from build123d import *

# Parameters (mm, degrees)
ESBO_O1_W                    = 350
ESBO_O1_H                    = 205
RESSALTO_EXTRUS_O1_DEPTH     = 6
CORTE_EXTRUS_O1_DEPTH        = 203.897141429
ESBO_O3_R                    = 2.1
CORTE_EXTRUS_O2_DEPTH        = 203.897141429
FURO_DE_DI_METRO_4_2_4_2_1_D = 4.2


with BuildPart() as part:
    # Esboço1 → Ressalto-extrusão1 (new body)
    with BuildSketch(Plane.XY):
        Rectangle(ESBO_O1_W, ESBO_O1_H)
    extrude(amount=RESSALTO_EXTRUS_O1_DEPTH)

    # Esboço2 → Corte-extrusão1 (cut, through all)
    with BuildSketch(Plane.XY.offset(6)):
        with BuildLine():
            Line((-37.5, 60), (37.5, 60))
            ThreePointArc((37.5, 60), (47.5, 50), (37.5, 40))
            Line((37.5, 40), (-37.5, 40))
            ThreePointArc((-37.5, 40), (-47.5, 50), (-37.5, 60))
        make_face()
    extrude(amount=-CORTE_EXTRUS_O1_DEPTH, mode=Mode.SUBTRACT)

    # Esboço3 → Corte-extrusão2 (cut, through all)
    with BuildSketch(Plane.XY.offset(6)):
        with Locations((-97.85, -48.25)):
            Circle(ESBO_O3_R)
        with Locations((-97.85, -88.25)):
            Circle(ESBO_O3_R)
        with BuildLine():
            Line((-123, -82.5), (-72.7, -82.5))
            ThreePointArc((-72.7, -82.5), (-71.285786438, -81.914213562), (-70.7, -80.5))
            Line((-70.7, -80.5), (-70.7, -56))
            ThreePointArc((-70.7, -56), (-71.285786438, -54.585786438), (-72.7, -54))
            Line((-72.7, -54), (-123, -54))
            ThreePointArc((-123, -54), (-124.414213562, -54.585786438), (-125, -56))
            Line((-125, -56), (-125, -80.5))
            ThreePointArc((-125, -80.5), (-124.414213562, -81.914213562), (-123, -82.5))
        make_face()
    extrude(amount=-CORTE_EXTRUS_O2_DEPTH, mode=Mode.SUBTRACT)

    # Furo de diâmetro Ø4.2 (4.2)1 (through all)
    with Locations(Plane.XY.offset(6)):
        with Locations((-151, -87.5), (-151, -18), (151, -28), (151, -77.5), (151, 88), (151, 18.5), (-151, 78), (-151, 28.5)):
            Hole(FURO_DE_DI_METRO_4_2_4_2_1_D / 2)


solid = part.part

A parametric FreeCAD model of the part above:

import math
import FreeCAD as App
import Part
import Sketcher
from FreeCAD import Vector
Q = App.Units.Quantity


def add_polygon(sketch, points):
    """Adds a closed chain of lines whose ends are joined by coincident constraints."""
    first, n = sketch.GeometryCount, len(points)
    for a, b in zip(points, points[1:] + points[:1]):
        sketch.addGeometry(Part.LineSegment(App.Vector(*a, 0), App.Vector(*b, 0)), False)
    for i in range(n):
        sketch.addConstraint(Sketcher.Constraint("Coincident", first + i, 2, first + (i + 1) % n, 1))

doc = App.newDocument("Part")
body = doc.addObject("PartDesign::Body", "Body")

sketch1 = body.newObject("Sketcher::SketchObject", "Sketch")
sketch1.AttachmentSupport = (doc.getObject("XY_Plane"), [""])
sketch1.MapMode = "FlatFace"
add_polygon(sketch1, [(-175, 102.5), (-175, -102.5), (175, -102.5), (175, 102.5)])
sketch1.addConstraint(Sketcher.Constraint("Vertical", 0))
sketch1.addConstraint(Sketcher.Constraint("Horizontal", 1))
sketch1.addConstraint(Sketcher.Constraint("Vertical", 2))
sketch1.addConstraint(Sketcher.Constraint("Horizontal", 3))
sketch1.addConstraint(Sketcher.Constraint("Symmetric", 0, 2, 2, 2, -1, 1))
sketch1.addConstraint(Sketcher.Constraint("DistanceX", 1, 1, 1, 2, Q("350 mm")))
sketch1.addConstraint(Sketcher.Constraint("DistanceY", 0, 2, 0, 1, Q("205 mm")))
pad1 = body.newObject("PartDesign::Pad", "Pad")
pad1.Profile = sketch1
pad1.Length = 6

sketch2 = body.newObject("Sketcher::SketchObject", "Sketch001")
sketch2.AttachmentSupport = (doc.getObject("XY_Plane"), [""])
sketch2.MapMode = "FlatFace"
sketch2.AttachmentOffset = App.Placement(Vector(0, 0, 6), App.Rotation())
sketch2.addGeometry(Part.LineSegment(Vector(37.5, 60, 0), Vector(-37.5, 60, 0)), False)
sketch2.addGeometry(Part.ArcOfCircle(Part.Circle(Vector(-37.5, 50, 0), Vector(0, 0, 1), 10), math.radians(90), math.radians(270)), False)
sketch2.addGeometry(Part.LineSegment(Vector(-37.5, 40, 0), Vector(37.5, 40, 0)), False)
sketch2.addGeometry(Part.ArcOfCircle(Part.Circle(Vector(37.5, 50, 0), Vector(0, 0, 1), 10), math.radians(-90), math.radians(90)), False)
sketch2.addConstraint(Sketcher.Constraint("Tangent", 0, 2, 1, 1))
sketch2.addConstraint(Sketcher.Constraint("Tangent", 1, 2, 2, 1))
sketch2.addConstraint(Sketcher.Constraint("Tangent", 2, 2, 3, 1))
sketch2.addConstraint(Sketcher.Constraint("Tangent", 3, 2, 0, 1))
sketch2.addConstraint(Sketcher.Constraint("Horizontal", 0))
sketch2.addConstraint(Sketcher.Constraint("Horizontal", 2))
sketch2.addConstraint(Sketcher.Constraint("Radius", 1, Q("10 mm")))
sketch2.addConstraint(Sketcher.Constraint("DistanceX", 0, 2, 0, 1, Q("75 mm")))
sketch2.addConstraint(Sketcher.Constraint("DistanceY", -1, 1, 1, 3, Q("50 mm")))
sketch2.addConstraint(Sketcher.Constraint("DistanceX", 1, 3, -1, 1, Q("37.5 mm")))
pocket1 = body.newObject("PartDesign::Pocket", "Pocket")
pocket1.Profile = sketch2
pocket1.Type = "ThroughAll"

sketch3 = body.newObject("Sketcher::SketchObject", "Sketch002")
sketch3.AttachmentSupport = (doc.getObject("XY_Plane"), [""])
sketch3.MapMode = "FlatFace"
sketch3.AttachmentOffset = App.Placement(Vector(0, 0, 6), App.Rotation())
sketch3.addGeometry(Part.Circle(Vector(-97.85, -48.25, 0), Vector(0, 0, 1), 2.1), False)
sketch3.addGeometry(Part.Circle(Vector(-97.85, -88.25, 0), Vector(0, 0, 1), 2.1), False)
sketch3.addGeometry(Part.LineSegment(Vector(-123, -82.5, 0), Vector(-72.7, -82.5, 0)), False)
sketch3.addGeometry(Part.ArcOfCircle(Part.Circle(Vector(-72.7, -80.5, 0), Vector(0, 0, 1), 2), math.radians(-90), math.radians(0)), False)
sketch3.addGeometry(Part.LineSegment(Vector(-70.7, -80.5, 0), Vector(-70.7, -56, 0)), False)
sketch3.addGeometry(Part.ArcOfCircle(Part.Circle(Vector(-72.7, -56, 0), Vector(0, 0, 1), 2), math.radians(0), math.radians(90)), False)
sketch3.addGeometry(Part.LineSegment(Vector(-72.7, -54, 0), Vector(-123, -54, 0)), False)
sketch3.addGeometry(Part.ArcOfCircle(Part.Circle(Vector(-123, -56, 0), Vector(0, 0, 1), 2), math.radians(90), math.radians(180)), False)
sketch3.addGeometry(Part.LineSegment(Vector(-125, -56, 0), Vector(-125, -80.5, 0)), False)
sketch3.addGeometry(Part.ArcOfCircle(Part.Circle(Vector(-123, -80.5, 0), Vector(0, 0, 1), 2), math.radians(-180), math.radians(-90)), False)
sketch3.addConstraint(Sketcher.Constraint("Tangent", 2, 2, 3, 1))
sketch3.addConstraint(Sketcher.Constraint("Tangent", 3, 2, 4, 1))
sketch3.addConstraint(Sketcher.Constraint("Tangent", 4, 2, 5, 1))
sketch3.addConstraint(Sketcher.Constraint("Tangent", 5, 2, 6, 1))
sketch3.addConstraint(Sketcher.Constraint("Tangent", 6, 2, 7, 1))
sketch3.addConstraint(Sketcher.Constraint("Tangent", 7, 2, 8, 1))
sketch3.addConstraint(Sketcher.Constraint("Tangent", 8, 2, 9, 1))
sketch3.addConstraint(Sketcher.Constraint("Tangent", 9, 2, 2, 1))
sketch3.addConstraint(Sketcher.Constraint("Horizontal", 2))
sketch3.addConstraint(Sketcher.Constraint("Vertical", 4))
sketch3.addConstraint(Sketcher.Constraint("Horizontal", 6))
sketch3.addConstraint(Sketcher.Constraint("Vertical", 8))
sketch3.addConstraint(Sketcher.Constraint("Equal", 0, 1))
sketch3.addConstraint(Sketcher.Constraint("Equal", 3, 5))
sketch3.addConstraint(Sketcher.Constraint("Equal", 5, 7))
sketch3.addConstraint(Sketcher.Constraint("Equal", 7, 9))
sketch3.addConstraint(Sketcher.Constraint("Vertical", 0, 3, 1, 3))
sketch3.addConstraint(Sketcher.Constraint("Radius", 3, Q("2 mm")))
sketch3.addConstraint(Sketcher.Constraint("Diameter", 0, Q("4.2 mm")))
sketch3.addConstraint(Sketcher.Constraint("DistanceX", 2, 1, 2, 2, Q("50.3 mm")))
sketch3.addConstraint(Sketcher.Constraint("DistanceY", 4, 1, 4, 2, Q("24.5 mm")))
sketch3.addConstraint(Sketcher.Constraint("DistanceY", 5, 3, -1, 1, Q("56 mm")))
sketch3.addConstraint(Sketcher.Constraint("DistanceX", 7, 3, -1, 1, Q("123 mm")))
sketch3.addConstraint(Sketcher.Constraint("DistanceY", 1, 3, 0, 3, Q("40 mm")))
sketch3.addConstraint(Sketcher.Constraint("DistanceX", 0, 3, -1, 1, Q("97.85 mm")))
sketch3.addConstraint(Sketcher.Constraint("DistanceY", 0, 3, -1, 1, Q("48.25 mm")))
pocket2 = body.newObject("PartDesign::Pocket", "Pocket001")
pocket2.Profile = sketch3
pocket2.Type = "ThroughAll"

sketch4 = body.newObject("Sketcher::SketchObject", "Sketch003")
sketch4.AttachmentSupport = (doc.getObject("XY_Plane"), [""])
sketch4.MapMode = "FlatFace"
sketch4.AttachmentOffset = App.Placement(Vector(0, 0, 6), App.Rotation())
sketch4.addGeometry(Part.Circle(Vector(-151, -87.5, 0), Vector(0, 0, 1), 2.1), False)
sketch4.addGeometry(Part.Circle(Vector(-151, -18, 0), Vector(0, 0, 1), 2.1), False)
sketch4.addGeometry(Part.Circle(Vector(151, -28, 0), Vector(0, 0, 1), 2.1), False)
sketch4.addGeometry(Part.Circle(Vector(151, -77.5, 0), Vector(0, 0, 1), 2.1), False)
sketch4.addGeometry(Part.Circle(Vector(151, 88, 0), Vector(0, 0, 1), 2.1), False)
sketch4.addGeometry(Part.Circle(Vector(151, 18.5, 0), Vector(0, 0, 1), 2.1), False)
sketch4.addGeometry(Part.Circle(Vector(-151, 78, 0), Vector(0, 0, 1), 2.1), False)
sketch4.addGeometry(Part.Circle(Vector(-151, 28.5, 0), Vector(0, 0, 1), 2.1), False)
sketch4.addConstraint(Sketcher.Constraint("Equal", 0, 1))
sketch4.addConstraint(Sketcher.Constraint("Equal", 1, 2))
sketch4.addConstraint(Sketcher.Constraint("Equal", 2, 3))
sketch4.addConstraint(Sketcher.Constraint("Equal", 3, 4))
sketch4.addConstraint(Sketcher.Constraint("Equal", 4, 5))
sketch4.addConstraint(Sketcher.Constraint("Equal", 5, 6))
sketch4.addConstraint(Sketcher.Constraint("Equal", 6, 7))
sketch4.addConstraint(Sketcher.Constraint("Vertical", 0, 3, 1, 3))
sketch4.addConstraint(Sketcher.Constraint("Vertical", 2, 3, 3, 3))
sketch4.addConstraint(Sketcher.Constraint("Vertical", 3, 3, 4, 3))
sketch4.addConstraint(Sketcher.Constraint("Vertical", 4, 3, 5, 3))
sketch4.addConstraint(Sketcher.Constraint("Vertical", 1, 3, 6, 3))
sketch4.addConstraint(Sketcher.Constraint("Vertical", 6, 3, 7, 3))
sketch4.addConstraint(Sketcher.Constraint("Diameter", 0, Q("4.2 mm")))
sketch4.addConstraint(Sketcher.Constraint("DistanceX", 0, 3, -1, 1, Q("151 mm")))
sketch4.addConstraint(Sketcher.Constraint("DistanceY", 1, 3, -1, 1, Q("18 mm")))
sketch4.addConstraint(Sketcher.Constraint("DistanceX", -1, 1, 2, 3, Q("151 mm")))
sketch4.addConstraint(Sketcher.Constraint("DistanceY", 2, 3, -1, 1, Q("28 mm")))
sketch4.addConstraint(Sketcher.Constraint("DistanceY", -1, 1, 4, 3, Q("88 mm")))
sketch4.addConstraint(Sketcher.Constraint("DistanceY", -1, 1, 6, 3, Q("78 mm")))
sketch4.addConstraint(Sketcher.Constraint("DistanceY", 0, 3, 3, 3, Q("10 mm")))
sketch4.addConstraint(Sketcher.Constraint("DistanceY", 3, 3, 5, 3, Q("96 mm")))
sketch4.addConstraint(Sketcher.Constraint("DistanceY", 0, 3, 7, 3, Q("116 mm")))
sketch4.addConstraint(Sketcher.Constraint("DistanceY", 0, 3, -1, 1, Q("87.5 mm")))
doc.recompute()
hole = body.newObject("PartDesign::Hole", "Hole")
hole.Profile = sketch4
hole.ThreadType = "None"
hole.Diameter = 4.2
hole.DepthType = "ThroughAll"

doc.recompute()
